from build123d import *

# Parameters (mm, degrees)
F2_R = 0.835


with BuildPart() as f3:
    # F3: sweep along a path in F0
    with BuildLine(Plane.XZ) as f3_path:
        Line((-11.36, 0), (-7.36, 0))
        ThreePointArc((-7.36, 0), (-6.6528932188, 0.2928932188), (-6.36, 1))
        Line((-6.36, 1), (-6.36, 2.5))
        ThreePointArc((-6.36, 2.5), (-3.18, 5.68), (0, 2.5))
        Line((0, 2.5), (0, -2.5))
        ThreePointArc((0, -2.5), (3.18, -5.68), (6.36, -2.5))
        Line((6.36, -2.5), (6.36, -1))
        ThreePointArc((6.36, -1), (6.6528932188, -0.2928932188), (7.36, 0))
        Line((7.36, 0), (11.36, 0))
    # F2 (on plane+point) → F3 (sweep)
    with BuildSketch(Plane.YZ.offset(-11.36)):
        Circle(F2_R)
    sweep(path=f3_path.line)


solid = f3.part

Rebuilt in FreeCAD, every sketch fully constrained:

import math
import FreeCAD as App
import Part
import Sketcher

V = App.Vector
Q = App.Units.Quantity

doc = App.newDocument("Part")
body = doc.addObject("PartDesign::Body", "Body")

# Sketch on YZ plane
sketch1 = body.newObject("Sketcher::SketchObject", "Sketch")
sketch1.AttachmentSupport = (doc.getObject("YZ_Plane"), [""])
sketch1.MapMode = "FlatFace"
sketch1.AttachmentOffset = App.Placement(V(0, 0, -11.36), App.Rotation())
sketch1.addGeometry(Part.Circle(V(0, 0, 0), V(0, 0, 1), 0.8), False)
sketch1.addConstraint(Sketcher.Constraint("Coincident", 0, 3, -1, 1))
sketch1.addConstraint(Sketcher.Constraint("Diameter", 0, Q("1.67 mm")))

# Sketch on XZ plane
sketch2 = body.newObject("Sketcher::SketchObject", "Sketch001")
sketch2.AttachmentSupport = (doc.getObject("XZ_Plane"), [""])
sketch2.MapMode = "FlatFace"
sketch2.addGeometry(Part.LineSegment(V(-11.4, 0, 0), V(-7.4, 0, 0)), False)
sketch2.addGeometry(Part.ArcOfCircle(Part.Circle(V(-7.4, 1, 0), V(0, 0, 1), 1), math.radians(-90), math.radians(0)), False)
sketch2.addGeometry(Part.LineSegment(V(-6.4, 1, 0), V(-6.4, 2.5, 0)), False)
sketch2.addGeometry(Part.ArcOfCircle(Part.Circle(V(-3.2, 2.5, 0), V(0, 0, 1), 3.2), math.radians(0), math.radians(180)), False)
sketch2.addGeometry(Part.LineSegment(V(0, 2.5, 0), V(0, -2.5, 0)), False)
sketch2.addGeometry(Part.ArcOfCircle(Part.Circle(V(3.2, -2.5, 0), V(0, 0, 1), 3.2), math.radians(180), math.radians(360)), False)
sketch2.addGeometry(Part.LineSegment(V(6.4, -2.5, 0), V(6.4, -1, 0)), False)
sketch2.addGeometry(Part.ArcOfCircle(Part.Circle(V(7.4, -1, 0), V(0, 0, 1), 1), math.radians(90), math.radians(180)), False)
sketch2.addGeometry(Part.LineSegment(V(7.4, 0, 0), V(11.4, 0, 0)), False)
sketch2.addConstraint(Sketcher.Constraint("Tangent", 0, 2, 1, 1))
sketch2.addConstraint(Sketcher.Constraint("Tangent", 1, 2, 2, 1))
sketch2.addConstraint(Sketcher.Constraint("Tangent", 2, 2, 3, 2))
sketch2.addConstraint(Sketcher.Constraint("Tangent", 3, 1, 4, 1))
sketch2.addConstraint(Sketcher.Constraint("Tangent", 4, 2, 5, 1))
sketch2.addConstraint(Sketcher.Constraint("Tangent", 5, 2, 6, 1))
sketch2.addConstraint(Sketcher.Constraint("Tangent", 6, 2, 7, 2))
sketch2.addConstraint(Sketcher.Constraint("Tangent", 7, 1, 8, 1))
sketch2.addConstraint(Sketcher.Constraint("Horizontal", 0))
sketch2.addConstraint(Sketcher.Constraint("Vertical", 2))
sketch2.addConstraint(Sketcher.Constraint("Vertical", 4))
sketch2.addConstraint(Sketcher.Constraint("Vertical", 6))
sketch2.addConstraint(Sketcher.Constraint("Horizontal", 8))
sketch2.addConstraint(Sketcher.Constraint("Equal", 3, 5))
sketch2.addConstraint(Sketcher.Constraint("Equal", 1, 7))
sketch2.addConstraint(Sketcher.Constraint("Symmetric", 3, 3, 5, 3, -1, 1))
sketch2.addConstraint(Sketcher.Constraint("Symmetric", 0, 1, 8, 2, -1, 1))
sketch2.addConstraint(Sketcher.Constraint("PointOnObject", 0, 1, -1))
sketch2.addConstraint(Sketcher.Constraint("Radius", 1, Q("1 mm")))
sketch2.addConstraint(Sketcher.Constraint("DistanceX", 0, 1, 0, 2, Q("4 mm")))
sketch2.addConstraint(Sketcher.Constraint("DistanceY", 4, 2, 4, 1, Q("5 mm")))
sketch2.addConstraint(Sketcher.Constraint("Radius", 3, Q("3.18 mm")))
doc.recompute()

additivepipe = body.newObject("PartDesign::AdditivePipe", "AdditivePipe")
additivepipe.Profile = sketch1
additivepipe.Spine = (sketch2, ["Edge1", "Edge2", "Edge3", "Edge4", "Edge5", "Edge6", "Edge7", "Edge8", "Edge9"])

doc.recompute()
